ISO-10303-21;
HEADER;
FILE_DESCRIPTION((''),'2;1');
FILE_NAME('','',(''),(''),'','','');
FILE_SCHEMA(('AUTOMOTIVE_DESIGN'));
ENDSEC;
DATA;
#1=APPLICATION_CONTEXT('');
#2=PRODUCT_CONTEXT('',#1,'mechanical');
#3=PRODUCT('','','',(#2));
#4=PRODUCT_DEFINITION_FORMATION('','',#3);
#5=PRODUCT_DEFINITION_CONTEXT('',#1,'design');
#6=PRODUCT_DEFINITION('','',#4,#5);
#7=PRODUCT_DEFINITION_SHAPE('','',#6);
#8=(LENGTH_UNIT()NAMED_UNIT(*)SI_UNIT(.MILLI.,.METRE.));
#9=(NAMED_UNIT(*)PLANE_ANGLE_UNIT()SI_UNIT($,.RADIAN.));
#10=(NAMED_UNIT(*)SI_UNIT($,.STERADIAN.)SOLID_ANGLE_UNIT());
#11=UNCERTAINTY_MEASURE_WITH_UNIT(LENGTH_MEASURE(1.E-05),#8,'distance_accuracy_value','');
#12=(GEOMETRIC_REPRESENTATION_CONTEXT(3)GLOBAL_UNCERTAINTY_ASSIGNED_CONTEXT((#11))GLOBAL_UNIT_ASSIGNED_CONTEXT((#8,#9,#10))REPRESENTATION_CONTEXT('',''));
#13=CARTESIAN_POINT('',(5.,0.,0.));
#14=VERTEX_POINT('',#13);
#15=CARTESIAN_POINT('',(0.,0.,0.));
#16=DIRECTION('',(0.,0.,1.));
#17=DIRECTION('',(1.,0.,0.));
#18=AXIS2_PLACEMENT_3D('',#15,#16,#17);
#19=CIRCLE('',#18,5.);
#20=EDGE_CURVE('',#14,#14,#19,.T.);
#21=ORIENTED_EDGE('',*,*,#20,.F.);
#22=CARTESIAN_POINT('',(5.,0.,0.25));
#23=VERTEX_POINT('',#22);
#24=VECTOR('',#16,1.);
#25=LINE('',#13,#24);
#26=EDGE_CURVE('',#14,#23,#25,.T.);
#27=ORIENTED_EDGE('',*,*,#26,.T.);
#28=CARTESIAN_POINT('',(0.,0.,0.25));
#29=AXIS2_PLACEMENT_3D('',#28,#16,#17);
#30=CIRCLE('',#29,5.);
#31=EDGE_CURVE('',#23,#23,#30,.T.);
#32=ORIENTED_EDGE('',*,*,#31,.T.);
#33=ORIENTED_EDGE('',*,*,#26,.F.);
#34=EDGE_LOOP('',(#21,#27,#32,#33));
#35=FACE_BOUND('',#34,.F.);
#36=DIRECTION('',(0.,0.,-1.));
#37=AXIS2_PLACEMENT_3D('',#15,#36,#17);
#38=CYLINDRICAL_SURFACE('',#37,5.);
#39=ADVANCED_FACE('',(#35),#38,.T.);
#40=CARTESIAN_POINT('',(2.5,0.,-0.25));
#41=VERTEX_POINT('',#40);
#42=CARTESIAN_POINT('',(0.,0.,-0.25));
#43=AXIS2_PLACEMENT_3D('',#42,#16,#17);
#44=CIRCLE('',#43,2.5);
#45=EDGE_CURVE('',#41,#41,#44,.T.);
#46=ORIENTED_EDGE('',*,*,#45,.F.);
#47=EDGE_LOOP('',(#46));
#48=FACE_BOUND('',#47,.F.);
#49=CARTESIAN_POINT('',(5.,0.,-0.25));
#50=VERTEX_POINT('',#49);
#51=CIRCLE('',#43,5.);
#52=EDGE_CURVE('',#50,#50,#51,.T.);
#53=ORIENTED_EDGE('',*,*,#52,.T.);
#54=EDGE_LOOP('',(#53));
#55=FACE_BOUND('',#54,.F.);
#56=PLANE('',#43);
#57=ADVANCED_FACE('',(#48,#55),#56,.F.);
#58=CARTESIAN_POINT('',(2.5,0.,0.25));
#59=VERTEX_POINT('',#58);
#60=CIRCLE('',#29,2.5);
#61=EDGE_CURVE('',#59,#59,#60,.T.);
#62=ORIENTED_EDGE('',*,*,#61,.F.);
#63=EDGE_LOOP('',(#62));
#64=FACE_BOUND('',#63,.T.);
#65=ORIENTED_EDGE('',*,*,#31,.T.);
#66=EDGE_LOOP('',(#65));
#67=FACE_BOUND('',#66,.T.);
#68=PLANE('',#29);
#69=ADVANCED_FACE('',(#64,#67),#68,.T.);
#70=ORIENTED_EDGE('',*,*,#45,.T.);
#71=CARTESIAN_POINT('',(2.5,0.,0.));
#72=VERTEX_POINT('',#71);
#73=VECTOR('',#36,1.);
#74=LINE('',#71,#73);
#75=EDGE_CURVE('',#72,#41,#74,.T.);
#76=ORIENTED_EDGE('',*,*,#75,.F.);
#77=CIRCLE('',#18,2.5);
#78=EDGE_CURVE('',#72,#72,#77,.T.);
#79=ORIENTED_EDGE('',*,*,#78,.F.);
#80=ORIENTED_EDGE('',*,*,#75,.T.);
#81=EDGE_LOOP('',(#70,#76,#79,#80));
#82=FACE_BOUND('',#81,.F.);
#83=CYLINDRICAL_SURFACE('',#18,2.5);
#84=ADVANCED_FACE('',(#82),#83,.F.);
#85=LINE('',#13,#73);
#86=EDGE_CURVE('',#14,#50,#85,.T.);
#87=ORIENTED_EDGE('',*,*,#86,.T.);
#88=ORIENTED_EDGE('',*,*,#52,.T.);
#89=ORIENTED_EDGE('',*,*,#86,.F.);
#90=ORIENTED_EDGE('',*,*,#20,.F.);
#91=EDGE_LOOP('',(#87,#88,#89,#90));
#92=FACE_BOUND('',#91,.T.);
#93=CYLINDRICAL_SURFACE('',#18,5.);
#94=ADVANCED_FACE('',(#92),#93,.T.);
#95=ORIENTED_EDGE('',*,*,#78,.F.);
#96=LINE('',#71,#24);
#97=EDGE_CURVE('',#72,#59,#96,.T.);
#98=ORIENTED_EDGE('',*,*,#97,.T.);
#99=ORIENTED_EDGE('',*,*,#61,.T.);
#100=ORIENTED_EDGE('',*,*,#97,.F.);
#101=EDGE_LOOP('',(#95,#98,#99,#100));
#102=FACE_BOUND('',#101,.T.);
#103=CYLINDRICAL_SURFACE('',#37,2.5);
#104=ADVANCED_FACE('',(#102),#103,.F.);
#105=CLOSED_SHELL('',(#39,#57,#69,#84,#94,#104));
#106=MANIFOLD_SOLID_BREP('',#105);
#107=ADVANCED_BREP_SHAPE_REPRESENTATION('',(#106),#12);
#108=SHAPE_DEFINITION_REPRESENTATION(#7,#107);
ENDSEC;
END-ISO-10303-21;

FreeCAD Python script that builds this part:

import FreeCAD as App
import Part
import Sketcher

V = App.Vector
Q = App.Units.Quantity

doc = App.newDocument("Part")
body = doc.addObject("PartDesign::Body", "Body")

sketch1 = body.newObject("Sketcher::SketchObject", "Sketch")
sketch1.AttachmentSupport = (doc.getObject("XY_Plane"), [""])
sketch1.MapMode = "FlatFace"
sketch1.addGeometry([
    Part.Circle(V(0, 0, 0), V(0, 0, 1), 5),
    Part.Circle(V(0, 0, 0), V(0, 0, 1), 2.5),
], False)
sketch1.addConstraint([
    Sketcher.Constraint("Coincident", 0, 3, -1, 1),
    Sketcher.Constraint("Coincident", 1, 3, -1, 1),
    Sketcher.Constraint("Diameter", 0, Q("10 mm")),
    Sketcher.Constraint("Diameter", 1, Q("5 mm")),
])
pad1 = body.newObject("PartDesign::Pad", "Pad")
pad1.Profile = sketch1
pad1.Length = 0.5
pad1.Midplane = True

doc.recompute()
